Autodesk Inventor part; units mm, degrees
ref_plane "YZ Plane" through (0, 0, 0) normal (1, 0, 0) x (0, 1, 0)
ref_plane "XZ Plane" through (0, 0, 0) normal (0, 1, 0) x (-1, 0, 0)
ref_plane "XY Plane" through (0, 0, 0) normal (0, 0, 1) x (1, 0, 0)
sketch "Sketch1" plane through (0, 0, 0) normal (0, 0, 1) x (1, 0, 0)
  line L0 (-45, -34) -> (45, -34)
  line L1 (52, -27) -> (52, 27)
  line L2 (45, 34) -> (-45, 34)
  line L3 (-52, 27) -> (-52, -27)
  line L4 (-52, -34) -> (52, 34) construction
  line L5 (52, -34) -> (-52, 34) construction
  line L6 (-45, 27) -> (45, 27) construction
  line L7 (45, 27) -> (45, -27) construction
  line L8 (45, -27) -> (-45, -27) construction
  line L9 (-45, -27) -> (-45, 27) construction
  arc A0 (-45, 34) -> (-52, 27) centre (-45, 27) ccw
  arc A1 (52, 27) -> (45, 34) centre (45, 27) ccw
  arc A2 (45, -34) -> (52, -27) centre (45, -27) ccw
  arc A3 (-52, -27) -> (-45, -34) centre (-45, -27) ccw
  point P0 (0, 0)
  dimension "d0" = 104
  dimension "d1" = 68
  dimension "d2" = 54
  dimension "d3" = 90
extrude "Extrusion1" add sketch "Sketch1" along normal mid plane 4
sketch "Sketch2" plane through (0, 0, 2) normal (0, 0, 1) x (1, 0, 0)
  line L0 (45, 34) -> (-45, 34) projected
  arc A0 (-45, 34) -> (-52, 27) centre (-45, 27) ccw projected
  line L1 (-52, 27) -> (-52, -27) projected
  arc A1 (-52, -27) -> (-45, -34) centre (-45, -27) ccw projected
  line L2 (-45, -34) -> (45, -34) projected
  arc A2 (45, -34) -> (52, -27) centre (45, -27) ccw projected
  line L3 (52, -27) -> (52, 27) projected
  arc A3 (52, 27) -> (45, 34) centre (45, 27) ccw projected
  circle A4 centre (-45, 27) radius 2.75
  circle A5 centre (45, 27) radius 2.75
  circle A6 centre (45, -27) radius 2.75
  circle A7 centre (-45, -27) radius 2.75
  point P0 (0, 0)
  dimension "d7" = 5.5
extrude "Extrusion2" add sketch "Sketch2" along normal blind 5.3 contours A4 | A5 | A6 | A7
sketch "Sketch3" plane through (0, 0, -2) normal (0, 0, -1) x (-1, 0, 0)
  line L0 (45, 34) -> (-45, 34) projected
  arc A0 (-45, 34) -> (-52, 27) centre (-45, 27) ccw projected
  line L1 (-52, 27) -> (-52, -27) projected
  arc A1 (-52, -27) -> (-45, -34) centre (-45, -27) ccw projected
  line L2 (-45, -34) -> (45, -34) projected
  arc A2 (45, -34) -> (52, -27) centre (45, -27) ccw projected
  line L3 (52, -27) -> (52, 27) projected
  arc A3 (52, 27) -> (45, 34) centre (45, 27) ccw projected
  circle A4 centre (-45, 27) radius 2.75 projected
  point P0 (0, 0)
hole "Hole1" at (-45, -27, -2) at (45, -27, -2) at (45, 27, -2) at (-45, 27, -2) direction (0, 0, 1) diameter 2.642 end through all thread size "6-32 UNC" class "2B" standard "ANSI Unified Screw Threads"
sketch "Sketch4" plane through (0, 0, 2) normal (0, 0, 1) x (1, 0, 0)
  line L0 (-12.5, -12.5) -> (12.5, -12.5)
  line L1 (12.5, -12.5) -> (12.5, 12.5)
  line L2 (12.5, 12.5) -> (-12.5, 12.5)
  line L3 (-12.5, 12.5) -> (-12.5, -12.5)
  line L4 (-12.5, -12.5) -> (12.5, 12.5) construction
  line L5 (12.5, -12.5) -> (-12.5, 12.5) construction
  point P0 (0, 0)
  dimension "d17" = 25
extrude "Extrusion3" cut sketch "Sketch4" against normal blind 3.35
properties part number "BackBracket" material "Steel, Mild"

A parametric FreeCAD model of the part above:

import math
import FreeCAD as App
import Part
import Sketcher
Q = App.Units.Quantity


def add_polygon(sketch, points):
    """Adds a closed chain of lines whose ends are joined by coincident constraints."""
    first, n = sketch.GeometryCount, len(points)
    for a, b in zip(points, points[1:] + points[:1]):
        sketch.addGeometry(Part.LineSegment(App.Vector(*a, 0), App.Vector(*b, 0)), False)
    for i in range(n):
        sketch.addConstraint(Sketcher.Constraint("Coincident", first + i, 2, first + (i + 1) % n, 1))

doc = App.newDocument("Part")
body = doc.addObject("PartDesign::Body", "Body")

# Sketch on XY plane
sketch1 = doc.addObject("Sketcher::SketchObject", "Sketch")
body.addObject(sketch1)
sketch1.AttachmentSupport = (doc.XY_Plane, [""])
sketch1.MapMode = "FlatFace"
sketch1.addGeometry([
    Part.ArcOfCircle(Part.Circle(App.Vector(-45, -27, 0), App.Vector(0, 0, 1), 7), math.radians(180), math.radians(270)),  # 0
    Part.LineSegment(App.Vector(-45, -34, 0), App.Vector(45, -34, 0)),  # 1
    Part.ArcOfCircle(Part.Circle(App.Vector(45, -27, 0), App.Vector(0, 0, 1), 7), math.radians(-90), math.radians(0)),  # 2
    Part.LineSegment(App.Vector(52, -27, 0), App.Vector(52, 27, 0)),  # 3
    Part.ArcOfCircle(Part.Circle(App.Vector(45, 27, 0), App.Vector(0, 0, 1), 7), math.radians(0), math.radians(90)),  # 4
    Part.LineSegment(App.Vector(45, 34, 0), App.Vector(-45, 34, 0)),  # 5
    Part.ArcOfCircle(Part.Circle(App.Vector(-45, 27, 0), App.Vector(0, 0, 1), 7), math.radians(90), math.radians(180)),  # 6
    Part.LineSegment(App.Vector(-52, 27, 0), App.Vector(-52, -27, 0)),  # 7
], False)
sketch1.addConstraint([
    Sketcher.Constraint("Tangent", 0, 2, 1, 1),
    Sketcher.Constraint("Tangent", 1, 2, 2, 1),
    Sketcher.Constraint("Tangent", 2, 2, 3, 1),
    Sketcher.Constraint("Tangent", 3, 2, 4, 1),
    Sketcher.Constraint("Tangent", 4, 2, 5, 1),
    Sketcher.Constraint("Tangent", 5, 2, 6, 1),
    Sketcher.Constraint("Tangent", 6, 2, 7, 1),
    Sketcher.Constraint("Tangent", 7, 2, 0, 1),
    Sketcher.Constraint("Horizontal", 1),
    Sketcher.Constraint("Vertical", 3),
    Sketcher.Constraint("Horizontal", 5),
    Sketcher.Constraint("Vertical", 7),
    Sketcher.Constraint("Equal", 0, 2),
    Sketcher.Constraint("Equal", 2, 4),
    Sketcher.Constraint("Equal", 4, 6),
    Sketcher.Constraint("Symmetric", 0, 3, 4, 3, -1, 1),
    Sketcher.Constraint("DistanceX", 1, 1, 1, 2, Q("90 mm")),
    Sketcher.Constraint("DistanceY", 3, 1, 3, 2, Q("54 mm")),
    Sketcher.Constraint("Radius", 0, Q("7 mm")),
])
pad1 = doc.addObject("PartDesign::Pad", "Pad")
body.addObject(pad1)
pad1.Profile = sketch1
pad1.Length = 4
pad1.Midplane = True

# Sketch on XY plane
sketch2 = doc.addObject("Sketcher::SketchObject", "Sketch001")
body.addObject(sketch2)
sketch2.AttachmentSupport = (doc.XY_Plane, [""])
sketch2.MapMode = "FlatFace"
sketch2.AttachmentOffset = App.Placement(App.Vector(0, 0, 2), App.Rotation())
sketch2.addGeometry([
    Part.Circle(App.Vector(-45, 27, 0), App.Vector(0, 0, 1), 2.8),
    Part.Circle(App.Vector(45, 27, 0), App.Vector(0, 0, 1), 2.8),
    Part.Circle(App.Vector(45, -27, 0), App.Vector(0, 0, 1), 2.8),
    Part.Circle(App.Vector(-45, -27, 0), App.Vector(0, 0, 1), 2.8),
], False)
sketch2.addConstraint([
    Sketcher.Constraint("Equal", 0, 1),
    Sketcher.Constraint("Equal", 1, 2),
    Sketcher.Constraint("Equal", 2, 3),
    Sketcher.Constraint("Symmetric", 0, 3, 2, 3, -1, 1),
    Sketcher.Constraint("Symmetric", 1, 3, 3, 3, -1, 1),
    Sketcher.Constraint("Symmetric", 0, 3, 1, 3, -2),
    Sketcher.Constraint("Diameter", 0, Q("5.5 mm")),
    Sketcher.Constraint("DistanceX", 0, 3, -1, 1, Q("45 mm")),
    Sketcher.Constraint("DistanceY", -1, 1, 0, 3, Q("27 mm")),
])
pad2 = doc.addObject("PartDesign::Pad", "Pad001")
body.addObject(pad2)
pad2.Profile = sketch2
pad2.Length = 5.3

# Sketch on XY plane
sketch3 = doc.addObject("Sketcher::SketchObject", "Sketch002")
body.addObject(sketch3)
sketch3.AttachmentSupport = (doc.XY_Plane, [""])
sketch3.MapMode = "FlatFace"
sketch3.AttachmentOffset = App.Placement(App.Vector(0, 0, -2), App.Rotation())
sketch3.addGeometry([
    Part.Circle(App.Vector(-45, -27, 0), App.Vector(0, 0, 1), 1.3),
    Part.Circle(App.Vector(45, -27, 0), App.Vector(0, 0, 1), 1.3),
    Part.Circle(App.Vector(45, 27, 0), App.Vector(0, 0, 1), 1.3),
    Part.Circle(App.Vector(-45, 27, 0), App.Vector(0, 0, 1), 1.3),
], False)
sketch3.addConstraint([
    Sketcher.Constraint("Equal", 0, 1),
    Sketcher.Constraint("Equal", 1, 2),
    Sketcher.Constraint("Equal", 2, 3),
    Sketcher.Constraint("Symmetric", 0, 3, 2, 3, -1, 1),
    Sketcher.Constraint("Symmetric", 1, 3, 3, 3, -1, 1),
    Sketcher.Constraint("Symmetric", 0, 3, 1, 3, -2),
    Sketcher.Constraint("Diameter", 0, Q("2.642 mm")),
    Sketcher.Constraint("DistanceX", 0, 3, -1, 1, Q("45 mm")),
    Sketcher.Constraint("DistanceY", 0, 3, -1, 1, Q("27 mm")),
])
doc.recompute()
hole = doc.addObject("PartDesign::Hole", "Hole")
body.addObject(hole)
hole.Profile = sketch3
hole.ThreadType = "None"
hole.Diameter = 2.642
hole.DepthType = "ThroughAll"
hole.Reversed = True

# Sketch on XY plane
sketch4 = doc.addObject("Sketcher::SketchObject", "Sketch003")
body.addObject(sketch4)
sketch4.AttachmentSupport = (doc.XY_Plane, [""])
sketch4.MapMode = "FlatFace"
sketch4.AttachmentOffset = App.Placement(App.Vector(0, 0, 2), App.Rotation())
add_polygon(sketch4, [(-12, 12), (-12, -12), (12, -12), (12, 12)])  # lines 0-3
sketch4.addConstraint([
    Sketcher.Constraint("Vertical", 0),
    Sketcher.Constraint("Horizontal", 1),
    Sketcher.Constraint("Vertical", 2),
    Sketcher.Constraint("Horizontal", 3),
    Sketcher.Constraint("Symmetric", 0, 2, 2, 2, -1, 1),
    Sketcher.Constraint("Equal", 3, 0),
    Sketcher.Constraint("DistanceX", 1, 1, 1, 2, Q("25 mm")),
])
pocket1 = doc.addObject("PartDesign::Pocket", "Pocket")
body.addObject(pocket1)
pocket1.Profile = sketch4
pocket1.Length = 3.35

doc.recompute()
